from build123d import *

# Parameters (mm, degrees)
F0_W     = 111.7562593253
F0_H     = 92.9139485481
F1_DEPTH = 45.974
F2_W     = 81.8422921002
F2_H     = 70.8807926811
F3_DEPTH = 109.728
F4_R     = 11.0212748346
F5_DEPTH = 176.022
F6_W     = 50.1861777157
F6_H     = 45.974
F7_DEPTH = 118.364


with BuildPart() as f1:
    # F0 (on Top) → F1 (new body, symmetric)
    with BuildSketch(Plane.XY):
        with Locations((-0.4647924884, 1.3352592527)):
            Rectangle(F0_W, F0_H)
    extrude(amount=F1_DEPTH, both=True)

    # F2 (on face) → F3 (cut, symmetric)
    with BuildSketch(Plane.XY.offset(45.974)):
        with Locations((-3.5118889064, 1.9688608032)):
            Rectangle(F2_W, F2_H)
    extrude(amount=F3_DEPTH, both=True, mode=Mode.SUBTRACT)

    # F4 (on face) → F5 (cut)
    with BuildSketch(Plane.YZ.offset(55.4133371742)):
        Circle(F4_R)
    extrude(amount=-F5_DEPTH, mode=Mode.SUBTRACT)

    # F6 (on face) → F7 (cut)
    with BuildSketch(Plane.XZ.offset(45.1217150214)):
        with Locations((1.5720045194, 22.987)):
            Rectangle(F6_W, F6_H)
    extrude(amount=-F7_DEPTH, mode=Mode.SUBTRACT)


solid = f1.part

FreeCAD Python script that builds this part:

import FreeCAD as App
import Part
import Sketcher
from FreeCAD import Vector
Q = App.Units.Quantity

doc = App.newDocument("Part")
body = doc.addObject("PartDesign::Body", "Body")

# Sketch on XY plane
sketch1 = body.newObject("Sketcher::SketchObject", "Sketch")
sketch1.AttachmentSupport = (doc.getObject("XY_Plane"), [""])
sketch1.MapMode = "FlatFace"
sketch1.addGeometry([
    Part.LineSegment(Vector(-56.342922, 47.792234, 0), Vector(-56.342922, -45.121715, 0)),
    Part.LineSegment(Vector(-56.342922, -45.121715, 0), Vector(55.413337, -45.121715, 0)),
    Part.LineSegment(Vector(55.413337, -45.121715, 0), Vector(55.413337, 47.792234, 0)),
    Part.LineSegment(Vector(55.413337, 47.792234, 0), Vector(-56.342922, 47.792234, 0)),
], False)
sketch1.addConstraint([
    Sketcher.Constraint("Coincident", 0, 2, 1, 1),
    Sketcher.Constraint("Coincident", 1, 2, 2, 1),
    Sketcher.Constraint("Coincident", 2, 2, 3, 1),
    Sketcher.Constraint("Coincident", 3, 2, 0, 1),
    Sketcher.Constraint("Vertical", 0),
    Sketcher.Constraint("Horizontal", 1),
    Sketcher.Constraint("Vertical", 2),
    Sketcher.Constraint("Horizontal", 3),
    Sketcher.Constraint("DistanceX", 1, 1, 1, 2, 111.756259),
    Sketcher.Constraint("DistanceY", 0, 2, 0, 1, 92.913949),
    Sketcher.Constraint("DistanceX", 0, 2, -1, 1, 56.342922),
    Sketcher.Constraint("DistanceY", 0, 2, -1, 1, 45.121715),
])
pad1 = body.newObject("PartDesign::Pad", "Pad")
pad1.Profile = sketch1
pad1.Length = Q("3.62 in")
pad1.Midplane = True

# Sketch on XY plane
sketch2 = body.newObject("Sketcher::SketchObject", "Sketch001")
sketch2.AttachmentSupport = (doc.getObject("XY_Plane"), [""])
sketch2.MapMode = "FlatFace"
sketch2.AttachmentOffset = App.Placement(Vector(0, 0, 1.81 * 25.4), App.Rotation())
sketch2.addGeometry([
    Part.LineSegment(Vector(-44.433035, 37.409257, 0), Vector(-44.433035, -33.471536, 0)),
    Part.LineSegment(Vector(-44.433035, -33.471536, 0), Vector(37.409257, -33.471536, 0)),
    Part.LineSegment(Vector(37.409257, -33.471536, 0), Vector(37.409257, 37.409257, 0)),
    Part.LineSegment(Vector(37.409257, 37.409257, 0), Vector(-44.433035, 37.409257, 0)),
], False)
sketch2.addConstraint([
    Sketcher.Constraint("Coincident", 0, 2, 1, 1),
    Sketcher.Constraint("Coincident", 1, 2, 2, 1),
    Sketcher.Constraint("Coincident", 2, 2, 3, 1),
    Sketcher.Constraint("Coincident", 3, 2, 0, 1),
    Sketcher.Constraint("Vertical", 0),
    Sketcher.Constraint("Horizontal", 1),
    Sketcher.Constraint("Vertical", 2),
    Sketcher.Constraint("Horizontal", 3),
    Sketcher.Constraint("DistanceX", 1, 1, 1, 2, 81.842292),
    Sketcher.Constraint("DistanceY", 0, 2, 0, 1, 70.880793),
    Sketcher.Constraint("DistanceX", 0, 2, -1, 1, 44.433035),
    Sketcher.Constraint("DistanceY", 0, 2, -1, 1, 33.471536),
])
pocket1 = body.newObject("PartDesign::Pocket", "Pocket")
pocket1.Profile = sketch2
pocket1.Length = Q("8.64 in")
pocket1.Midplane = True

# Sketch on YZ plane
sketch3 = body.newObject("Sketcher::SketchObject", "Sketch002")
sketch3.AttachmentSupport = (doc.getObject("YZ_Plane"), [""])
sketch3.MapMode = "FlatFace"
sketch3.AttachmentOffset = App.Placement(Vector(0, 0, 55.413337), App.Rotation())
sketch3.addGeometry(Part.Circle(Vector(0, 0, 0), Vector(0, 0, 1), 11.021275), False)
sketch3.addConstraint([
    Sketcher.Constraint("Coincident", 0, 3, -1, 1),
    Sketcher.Constraint("Diameter", 0, 22.04255),
])
pocket2 = body.newObject("PartDesign::Pocket", "Pocket001")
pocket2.Profile = sketch3
pocket2.Length = Q("6.93 in")

# Sketch on XZ plane
sketch4 = body.newObject("Sketcher::SketchObject", "Sketch003")
sketch4.AttachmentSupport = (doc.getObject("XZ_Plane"), [""])
sketch4.MapMode = "FlatFace"
sketch4.AttachmentOffset = App.Placement(Vector(0, 0, 45.121715), App.Rotation())
sketch4.addGeometry([
    Part.LineSegment(Vector(-23.521084, 45.974, 0), Vector(-23.521084, 0, 0)),
    Part.LineSegment(Vector(-23.521084, 0, 0), Vector(26.665093, 0, 0)),
    Part.LineSegment(Vector(26.665093, 0, 0), Vector(26.665093, 45.974, 0)),
    Part.LineSegment(Vector(26.665093, 45.974, 0), Vector(-23.521084, 45.974, 0)),
], False)
sketch4.addConstraint([
    Sketcher.Constraint("Coincident", 0, 2, 1, 1),
    Sketcher.Constraint("Coincident", 1, 2, 2, 1),
    Sketcher.Constraint("Coincident", 2, 2, 3, 1),
    Sketcher.Constraint("Coincident", 3, 2, 0, 1),
    Sketcher.Constraint("Vertical", 0),
    Sketcher.Constraint("Horizontal", 1),
    Sketcher.Constraint("Vertical", 2),
    Sketcher.Constraint("Horizontal", 3),
    Sketcher.Constraint("PointOnObject", 0, 2, -1),
    Sketcher.Constraint("DistanceY", 0, 2, 0, 1, Q("1.81 in")),
    Sketcher.Constraint("DistanceX", 1, 1, 1, 2, 50.186178),
    Sketcher.Constraint("DistanceX", 0, 2, -1, 1, 23.521084),
])
pocket3 = body.newObject("PartDesign::Pocket", "Pocket002")
pocket3.Profile = sketch4
pocket3.Length = Q("4.66 in")

doc.recompute()
